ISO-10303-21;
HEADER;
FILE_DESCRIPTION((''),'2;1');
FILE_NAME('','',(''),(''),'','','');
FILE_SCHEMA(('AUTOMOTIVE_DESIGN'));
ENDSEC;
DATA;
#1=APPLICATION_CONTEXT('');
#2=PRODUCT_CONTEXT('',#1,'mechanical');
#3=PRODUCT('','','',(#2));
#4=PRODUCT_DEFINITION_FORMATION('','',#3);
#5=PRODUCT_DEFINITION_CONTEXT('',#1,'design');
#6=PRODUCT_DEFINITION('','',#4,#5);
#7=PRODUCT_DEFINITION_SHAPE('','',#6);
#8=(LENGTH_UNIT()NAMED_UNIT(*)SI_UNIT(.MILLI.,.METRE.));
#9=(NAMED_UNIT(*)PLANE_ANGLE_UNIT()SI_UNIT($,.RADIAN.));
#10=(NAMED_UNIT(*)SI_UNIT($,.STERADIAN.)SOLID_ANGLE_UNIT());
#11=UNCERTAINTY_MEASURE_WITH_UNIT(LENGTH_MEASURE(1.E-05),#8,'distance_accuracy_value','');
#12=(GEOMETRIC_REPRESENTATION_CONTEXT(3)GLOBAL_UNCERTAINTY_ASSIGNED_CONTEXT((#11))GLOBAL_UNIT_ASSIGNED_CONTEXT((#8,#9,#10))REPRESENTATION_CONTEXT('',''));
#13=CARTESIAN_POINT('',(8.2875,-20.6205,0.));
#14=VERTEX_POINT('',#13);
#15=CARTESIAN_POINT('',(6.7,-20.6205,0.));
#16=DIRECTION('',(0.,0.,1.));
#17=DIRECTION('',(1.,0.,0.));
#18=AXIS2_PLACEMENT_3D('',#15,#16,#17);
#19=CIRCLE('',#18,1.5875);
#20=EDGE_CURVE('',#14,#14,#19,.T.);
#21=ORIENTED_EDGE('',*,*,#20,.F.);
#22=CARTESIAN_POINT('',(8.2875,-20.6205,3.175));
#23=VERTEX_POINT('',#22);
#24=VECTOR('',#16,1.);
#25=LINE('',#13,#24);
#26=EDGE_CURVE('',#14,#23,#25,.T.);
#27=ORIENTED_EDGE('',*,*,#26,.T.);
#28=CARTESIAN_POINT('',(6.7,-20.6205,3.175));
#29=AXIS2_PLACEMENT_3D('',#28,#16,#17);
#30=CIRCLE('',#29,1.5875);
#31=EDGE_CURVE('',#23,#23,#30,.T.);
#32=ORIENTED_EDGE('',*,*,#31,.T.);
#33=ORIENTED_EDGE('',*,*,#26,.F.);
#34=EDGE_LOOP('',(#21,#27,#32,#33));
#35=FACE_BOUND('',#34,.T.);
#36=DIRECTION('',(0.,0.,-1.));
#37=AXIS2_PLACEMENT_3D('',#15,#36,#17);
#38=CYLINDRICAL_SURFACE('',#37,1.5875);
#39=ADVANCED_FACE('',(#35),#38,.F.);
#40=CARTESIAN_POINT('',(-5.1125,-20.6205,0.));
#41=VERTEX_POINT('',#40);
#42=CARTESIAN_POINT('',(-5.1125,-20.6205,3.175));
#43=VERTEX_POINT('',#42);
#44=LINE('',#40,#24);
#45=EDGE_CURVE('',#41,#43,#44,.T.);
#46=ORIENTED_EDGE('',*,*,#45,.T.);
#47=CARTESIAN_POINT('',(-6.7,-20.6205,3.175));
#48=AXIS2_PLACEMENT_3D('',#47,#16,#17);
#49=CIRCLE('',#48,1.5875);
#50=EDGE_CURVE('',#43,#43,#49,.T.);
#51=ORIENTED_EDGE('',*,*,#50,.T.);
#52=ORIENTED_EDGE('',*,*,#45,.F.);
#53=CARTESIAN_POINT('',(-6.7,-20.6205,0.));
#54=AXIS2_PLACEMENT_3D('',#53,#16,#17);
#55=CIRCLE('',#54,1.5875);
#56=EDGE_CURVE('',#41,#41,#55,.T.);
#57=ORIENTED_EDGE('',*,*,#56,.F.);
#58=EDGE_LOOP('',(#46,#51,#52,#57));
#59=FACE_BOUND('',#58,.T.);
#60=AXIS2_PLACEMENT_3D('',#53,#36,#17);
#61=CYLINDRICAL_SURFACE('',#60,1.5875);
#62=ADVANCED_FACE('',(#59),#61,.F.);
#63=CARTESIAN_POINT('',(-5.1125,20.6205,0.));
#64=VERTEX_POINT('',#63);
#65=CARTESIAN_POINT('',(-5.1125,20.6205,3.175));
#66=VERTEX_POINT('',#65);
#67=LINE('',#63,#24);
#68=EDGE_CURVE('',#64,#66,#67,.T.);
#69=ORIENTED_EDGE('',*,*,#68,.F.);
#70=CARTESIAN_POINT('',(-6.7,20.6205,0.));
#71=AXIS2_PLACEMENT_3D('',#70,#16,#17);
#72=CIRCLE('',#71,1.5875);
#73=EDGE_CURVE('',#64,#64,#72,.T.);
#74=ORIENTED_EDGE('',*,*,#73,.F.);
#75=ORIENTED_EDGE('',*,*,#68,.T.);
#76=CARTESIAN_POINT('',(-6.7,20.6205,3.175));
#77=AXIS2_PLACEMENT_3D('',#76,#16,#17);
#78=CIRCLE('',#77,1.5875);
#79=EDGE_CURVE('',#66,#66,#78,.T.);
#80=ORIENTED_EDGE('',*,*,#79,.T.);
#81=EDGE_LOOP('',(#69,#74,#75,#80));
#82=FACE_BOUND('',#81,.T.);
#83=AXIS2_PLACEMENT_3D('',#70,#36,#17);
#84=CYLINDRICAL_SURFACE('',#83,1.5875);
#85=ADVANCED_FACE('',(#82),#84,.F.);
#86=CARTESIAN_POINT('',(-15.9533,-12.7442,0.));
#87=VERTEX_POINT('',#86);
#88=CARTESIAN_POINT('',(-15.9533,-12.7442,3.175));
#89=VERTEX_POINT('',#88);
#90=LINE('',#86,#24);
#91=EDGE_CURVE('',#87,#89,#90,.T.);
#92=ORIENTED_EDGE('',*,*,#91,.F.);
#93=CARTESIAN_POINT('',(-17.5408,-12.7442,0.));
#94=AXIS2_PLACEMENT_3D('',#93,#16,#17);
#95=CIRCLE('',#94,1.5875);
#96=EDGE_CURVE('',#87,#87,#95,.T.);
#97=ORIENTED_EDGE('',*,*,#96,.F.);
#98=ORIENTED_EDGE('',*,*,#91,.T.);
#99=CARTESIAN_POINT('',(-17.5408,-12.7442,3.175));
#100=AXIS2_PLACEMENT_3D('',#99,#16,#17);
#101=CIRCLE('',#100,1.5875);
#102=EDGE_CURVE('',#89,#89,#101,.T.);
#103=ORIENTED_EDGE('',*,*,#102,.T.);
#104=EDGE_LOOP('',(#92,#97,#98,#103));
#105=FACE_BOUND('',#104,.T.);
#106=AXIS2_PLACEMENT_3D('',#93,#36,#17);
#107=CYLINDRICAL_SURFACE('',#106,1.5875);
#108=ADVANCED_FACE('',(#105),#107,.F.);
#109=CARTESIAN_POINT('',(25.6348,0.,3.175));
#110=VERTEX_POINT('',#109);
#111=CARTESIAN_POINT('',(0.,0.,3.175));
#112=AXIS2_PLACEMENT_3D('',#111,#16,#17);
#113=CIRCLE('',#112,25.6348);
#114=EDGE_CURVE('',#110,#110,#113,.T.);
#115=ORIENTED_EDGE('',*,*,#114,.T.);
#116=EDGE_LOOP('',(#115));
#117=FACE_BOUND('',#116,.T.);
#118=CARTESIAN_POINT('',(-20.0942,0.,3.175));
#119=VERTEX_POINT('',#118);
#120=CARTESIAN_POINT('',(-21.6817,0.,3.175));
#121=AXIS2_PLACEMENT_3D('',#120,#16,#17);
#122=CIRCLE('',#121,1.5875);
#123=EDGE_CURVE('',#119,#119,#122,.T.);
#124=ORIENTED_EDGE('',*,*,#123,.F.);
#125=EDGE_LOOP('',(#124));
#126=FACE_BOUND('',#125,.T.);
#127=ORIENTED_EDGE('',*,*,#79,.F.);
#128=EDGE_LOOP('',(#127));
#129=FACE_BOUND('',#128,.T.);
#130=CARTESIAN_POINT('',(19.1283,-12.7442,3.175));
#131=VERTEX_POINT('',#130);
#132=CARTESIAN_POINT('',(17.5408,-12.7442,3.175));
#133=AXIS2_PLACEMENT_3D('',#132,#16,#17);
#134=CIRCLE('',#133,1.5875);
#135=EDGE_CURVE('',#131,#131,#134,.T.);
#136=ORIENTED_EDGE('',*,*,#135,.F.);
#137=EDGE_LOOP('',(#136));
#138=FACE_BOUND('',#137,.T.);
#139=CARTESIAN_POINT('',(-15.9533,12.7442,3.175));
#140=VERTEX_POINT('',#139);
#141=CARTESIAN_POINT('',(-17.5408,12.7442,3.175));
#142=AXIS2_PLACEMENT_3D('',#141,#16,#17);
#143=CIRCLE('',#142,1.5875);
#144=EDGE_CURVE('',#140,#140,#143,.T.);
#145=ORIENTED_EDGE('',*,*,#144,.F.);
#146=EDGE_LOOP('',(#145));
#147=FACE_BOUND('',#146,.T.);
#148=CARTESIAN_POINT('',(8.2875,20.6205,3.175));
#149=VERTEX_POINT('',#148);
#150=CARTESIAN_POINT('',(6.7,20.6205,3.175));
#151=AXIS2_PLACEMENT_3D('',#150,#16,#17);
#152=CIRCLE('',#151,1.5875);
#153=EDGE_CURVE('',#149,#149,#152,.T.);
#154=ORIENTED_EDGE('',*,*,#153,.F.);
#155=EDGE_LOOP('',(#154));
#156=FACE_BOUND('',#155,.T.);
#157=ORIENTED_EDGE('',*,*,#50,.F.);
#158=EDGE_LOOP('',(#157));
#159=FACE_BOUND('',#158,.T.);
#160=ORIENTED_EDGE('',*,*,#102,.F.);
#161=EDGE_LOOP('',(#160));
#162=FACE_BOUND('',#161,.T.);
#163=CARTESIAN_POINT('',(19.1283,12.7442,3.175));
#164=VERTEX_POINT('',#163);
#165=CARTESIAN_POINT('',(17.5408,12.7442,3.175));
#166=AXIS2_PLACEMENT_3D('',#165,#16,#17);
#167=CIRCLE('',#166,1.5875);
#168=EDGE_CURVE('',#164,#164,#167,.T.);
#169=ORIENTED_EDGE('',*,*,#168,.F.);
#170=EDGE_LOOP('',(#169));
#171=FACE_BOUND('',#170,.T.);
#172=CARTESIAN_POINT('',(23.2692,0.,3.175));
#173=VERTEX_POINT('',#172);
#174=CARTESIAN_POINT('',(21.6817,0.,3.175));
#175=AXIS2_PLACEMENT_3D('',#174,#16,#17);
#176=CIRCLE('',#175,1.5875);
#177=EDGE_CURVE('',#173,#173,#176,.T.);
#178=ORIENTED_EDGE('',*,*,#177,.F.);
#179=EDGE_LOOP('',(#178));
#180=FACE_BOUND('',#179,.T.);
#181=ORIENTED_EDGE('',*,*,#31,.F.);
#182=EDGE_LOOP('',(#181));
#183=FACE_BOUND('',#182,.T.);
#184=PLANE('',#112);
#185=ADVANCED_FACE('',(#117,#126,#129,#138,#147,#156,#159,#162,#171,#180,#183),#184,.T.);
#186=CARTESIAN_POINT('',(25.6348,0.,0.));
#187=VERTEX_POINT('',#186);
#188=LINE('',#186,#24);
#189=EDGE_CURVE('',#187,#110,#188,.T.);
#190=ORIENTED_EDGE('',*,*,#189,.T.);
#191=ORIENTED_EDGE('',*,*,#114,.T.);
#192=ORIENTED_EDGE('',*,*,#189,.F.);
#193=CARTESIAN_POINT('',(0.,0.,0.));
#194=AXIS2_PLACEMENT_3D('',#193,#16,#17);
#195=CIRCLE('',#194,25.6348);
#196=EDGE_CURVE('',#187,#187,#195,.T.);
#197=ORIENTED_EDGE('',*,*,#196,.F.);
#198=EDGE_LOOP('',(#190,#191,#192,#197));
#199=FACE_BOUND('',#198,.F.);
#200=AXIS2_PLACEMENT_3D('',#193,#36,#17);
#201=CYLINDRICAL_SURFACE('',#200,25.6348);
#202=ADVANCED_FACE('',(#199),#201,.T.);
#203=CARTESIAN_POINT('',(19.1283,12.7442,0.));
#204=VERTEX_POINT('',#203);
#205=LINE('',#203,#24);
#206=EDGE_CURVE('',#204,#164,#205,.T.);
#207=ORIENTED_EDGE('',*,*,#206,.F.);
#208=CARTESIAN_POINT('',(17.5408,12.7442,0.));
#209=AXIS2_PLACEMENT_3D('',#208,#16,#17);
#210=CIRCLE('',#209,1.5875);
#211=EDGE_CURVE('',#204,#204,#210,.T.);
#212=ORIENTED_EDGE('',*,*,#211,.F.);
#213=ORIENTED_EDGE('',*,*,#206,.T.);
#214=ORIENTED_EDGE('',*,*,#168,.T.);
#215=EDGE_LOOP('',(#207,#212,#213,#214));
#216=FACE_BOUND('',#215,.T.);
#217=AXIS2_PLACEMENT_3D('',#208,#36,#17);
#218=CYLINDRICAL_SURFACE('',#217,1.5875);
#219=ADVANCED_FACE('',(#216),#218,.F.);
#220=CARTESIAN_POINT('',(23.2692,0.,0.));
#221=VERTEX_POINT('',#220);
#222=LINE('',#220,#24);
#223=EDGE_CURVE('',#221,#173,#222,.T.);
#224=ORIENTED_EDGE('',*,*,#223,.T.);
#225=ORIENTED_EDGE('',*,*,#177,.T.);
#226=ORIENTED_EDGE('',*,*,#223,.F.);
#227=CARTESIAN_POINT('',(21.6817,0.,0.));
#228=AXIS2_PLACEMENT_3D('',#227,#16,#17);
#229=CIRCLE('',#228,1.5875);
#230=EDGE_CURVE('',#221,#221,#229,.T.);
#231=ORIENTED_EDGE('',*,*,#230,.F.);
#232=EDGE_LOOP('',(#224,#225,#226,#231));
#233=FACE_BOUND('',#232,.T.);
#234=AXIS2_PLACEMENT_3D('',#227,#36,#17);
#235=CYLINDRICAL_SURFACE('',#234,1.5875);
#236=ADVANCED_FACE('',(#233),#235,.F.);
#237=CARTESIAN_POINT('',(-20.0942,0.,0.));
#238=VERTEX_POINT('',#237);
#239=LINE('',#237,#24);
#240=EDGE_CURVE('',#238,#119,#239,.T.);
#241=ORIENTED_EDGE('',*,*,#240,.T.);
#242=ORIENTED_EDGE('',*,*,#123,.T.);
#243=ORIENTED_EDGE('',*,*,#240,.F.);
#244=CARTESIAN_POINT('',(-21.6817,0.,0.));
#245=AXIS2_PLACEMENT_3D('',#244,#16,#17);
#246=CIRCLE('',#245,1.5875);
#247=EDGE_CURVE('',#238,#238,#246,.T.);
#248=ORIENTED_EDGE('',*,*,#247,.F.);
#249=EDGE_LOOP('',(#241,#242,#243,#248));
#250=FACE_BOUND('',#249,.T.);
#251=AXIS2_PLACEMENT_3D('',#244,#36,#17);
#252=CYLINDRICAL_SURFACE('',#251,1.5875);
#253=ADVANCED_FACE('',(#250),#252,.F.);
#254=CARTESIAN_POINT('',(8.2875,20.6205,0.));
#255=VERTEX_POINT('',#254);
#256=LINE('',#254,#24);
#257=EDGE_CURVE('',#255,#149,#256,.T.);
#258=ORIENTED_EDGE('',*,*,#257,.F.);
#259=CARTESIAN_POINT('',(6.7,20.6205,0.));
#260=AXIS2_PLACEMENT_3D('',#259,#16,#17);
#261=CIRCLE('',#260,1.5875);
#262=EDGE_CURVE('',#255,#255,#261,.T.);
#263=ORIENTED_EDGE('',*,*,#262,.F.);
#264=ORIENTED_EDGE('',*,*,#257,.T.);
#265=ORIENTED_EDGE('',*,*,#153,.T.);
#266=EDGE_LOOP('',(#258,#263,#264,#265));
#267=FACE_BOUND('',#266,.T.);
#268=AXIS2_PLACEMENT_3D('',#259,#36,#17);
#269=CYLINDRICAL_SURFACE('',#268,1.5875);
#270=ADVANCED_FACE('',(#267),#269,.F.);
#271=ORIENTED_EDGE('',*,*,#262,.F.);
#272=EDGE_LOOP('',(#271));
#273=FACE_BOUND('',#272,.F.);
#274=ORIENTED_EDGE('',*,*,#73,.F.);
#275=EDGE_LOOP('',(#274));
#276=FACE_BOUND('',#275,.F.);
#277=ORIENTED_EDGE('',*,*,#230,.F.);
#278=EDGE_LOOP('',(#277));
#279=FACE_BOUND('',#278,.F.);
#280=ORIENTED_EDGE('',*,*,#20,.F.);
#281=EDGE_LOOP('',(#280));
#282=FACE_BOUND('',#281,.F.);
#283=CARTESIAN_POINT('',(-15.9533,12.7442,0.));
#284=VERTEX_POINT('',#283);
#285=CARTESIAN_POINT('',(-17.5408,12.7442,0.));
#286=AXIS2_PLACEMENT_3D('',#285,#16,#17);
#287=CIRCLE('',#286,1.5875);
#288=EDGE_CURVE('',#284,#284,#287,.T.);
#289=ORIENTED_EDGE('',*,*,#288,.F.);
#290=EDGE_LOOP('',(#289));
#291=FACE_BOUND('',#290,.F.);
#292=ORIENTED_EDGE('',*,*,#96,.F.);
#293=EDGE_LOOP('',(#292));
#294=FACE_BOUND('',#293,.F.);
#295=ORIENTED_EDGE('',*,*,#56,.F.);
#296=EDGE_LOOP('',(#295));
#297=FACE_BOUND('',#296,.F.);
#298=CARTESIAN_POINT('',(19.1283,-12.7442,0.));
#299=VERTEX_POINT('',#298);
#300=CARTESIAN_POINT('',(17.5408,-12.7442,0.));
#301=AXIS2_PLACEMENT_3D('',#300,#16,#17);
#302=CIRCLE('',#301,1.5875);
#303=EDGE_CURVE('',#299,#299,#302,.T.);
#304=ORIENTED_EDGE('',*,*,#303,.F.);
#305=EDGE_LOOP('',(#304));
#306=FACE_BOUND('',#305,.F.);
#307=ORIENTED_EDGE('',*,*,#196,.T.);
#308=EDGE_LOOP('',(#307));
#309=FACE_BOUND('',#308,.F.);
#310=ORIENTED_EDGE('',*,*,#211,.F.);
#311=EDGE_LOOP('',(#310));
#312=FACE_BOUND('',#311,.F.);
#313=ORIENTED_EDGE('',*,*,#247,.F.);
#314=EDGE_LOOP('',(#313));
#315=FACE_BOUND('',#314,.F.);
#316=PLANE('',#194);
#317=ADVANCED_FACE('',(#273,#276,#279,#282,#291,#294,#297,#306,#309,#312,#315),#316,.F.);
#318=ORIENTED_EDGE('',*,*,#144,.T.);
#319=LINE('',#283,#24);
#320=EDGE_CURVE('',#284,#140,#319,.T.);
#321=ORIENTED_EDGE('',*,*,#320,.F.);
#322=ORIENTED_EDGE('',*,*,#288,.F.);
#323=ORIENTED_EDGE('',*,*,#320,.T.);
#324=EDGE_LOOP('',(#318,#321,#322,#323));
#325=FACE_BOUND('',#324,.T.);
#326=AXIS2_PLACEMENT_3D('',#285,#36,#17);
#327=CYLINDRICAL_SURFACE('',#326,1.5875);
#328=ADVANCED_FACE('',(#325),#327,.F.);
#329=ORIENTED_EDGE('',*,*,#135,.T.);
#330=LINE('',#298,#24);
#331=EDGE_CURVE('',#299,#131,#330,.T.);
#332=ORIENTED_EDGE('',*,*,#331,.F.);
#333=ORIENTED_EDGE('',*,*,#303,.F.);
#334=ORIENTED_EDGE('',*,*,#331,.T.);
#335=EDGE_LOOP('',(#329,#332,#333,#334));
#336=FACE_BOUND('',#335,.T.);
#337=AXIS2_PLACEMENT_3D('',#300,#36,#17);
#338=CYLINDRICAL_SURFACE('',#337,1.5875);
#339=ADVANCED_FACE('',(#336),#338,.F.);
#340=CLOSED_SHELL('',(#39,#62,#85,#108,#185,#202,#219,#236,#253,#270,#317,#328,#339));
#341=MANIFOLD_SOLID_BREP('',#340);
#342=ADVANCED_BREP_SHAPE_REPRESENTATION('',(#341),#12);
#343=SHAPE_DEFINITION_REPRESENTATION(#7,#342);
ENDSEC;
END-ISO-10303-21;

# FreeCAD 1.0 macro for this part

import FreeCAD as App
import Part
import Sketcher
from FreeCAD import Vector
Q = App.Units.Quantity

doc = App.newDocument("Part")
body = doc.addObject("PartDesign::Body", "Body")

sketch1 = body.newObject("Sketcher::SketchObject", "Sketch")
sketch1.AttachmentSupport = (doc.getObject("XY_Plane"), [""])
sketch1.MapMode = "FlatFace"
sketch1.addGeometry([
    Part.Circle(Vector(0, 0, 0), Vector(0, 0, 1), 25.6348),
    Part.Circle(Vector(-6.7, -20.6205, 0), Vector(0, 0, 1), 1.5875),
    Part.Circle(Vector(-17.5408, -12.7442, 0), Vector(0, 0, 1), 1.5875),
    Part.Circle(Vector(6.7, -20.6205, 0), Vector(0, 0, 1), 1.5875),
    Part.Circle(Vector(17.5408, -12.7442, 0), Vector(0, 0, 1), 1.5875),
    Part.Circle(Vector(-21.6817, 0, 0), Vector(0, 0, 1), 1.5875),
    Part.Circle(Vector(-17.5408, 12.7442, 0), Vector(0, 0, 1), 1.5875),
    Part.Circle(Vector(-6.7, 20.6205, 0), Vector(0, 0, 1), 1.5875),
    Part.Circle(Vector(21.6817, 0, 0), Vector(0, 0, 1), 1.5875),
    Part.Circle(Vector(17.5408, 12.7442, 0), Vector(0, 0, 1), 1.5875),
    Part.Circle(Vector(6.7, 20.6205, 0), Vector(0, 0, 1), 1.5875),
], False)
sketch1.addConstraint([
    Sketcher.Constraint("Coincident", 0, 3, -1, 1),
    Sketcher.Constraint("Equal", 1, 2),
    Sketcher.Constraint("Equal", 2, 3),
    Sketcher.Constraint("Equal", 3, 4),
    Sketcher.Constraint("Equal", 4, 5),
    Sketcher.Constraint("Equal", 5, 6),
    Sketcher.Constraint("Equal", 6, 7),
    Sketcher.Constraint("Equal", 7, 8),
    Sketcher.Constraint("Equal", 8, 9),
    Sketcher.Constraint("Equal", 9, 10),
    Sketcher.Constraint("Symmetric", 4, 3, 6, 3, -1, 1),
    Sketcher.Constraint("Symmetric", 3, 3, 7, 3, -1, 1),
    Sketcher.Constraint("Symmetric", 5, 3, 8, 3, -1, 1),
    Sketcher.Constraint("Symmetric", 2, 3, 9, 3, -1, 1),
    Sketcher.Constraint("Symmetric", 1, 3, 10, 3, -1, 1),
    Sketcher.Constraint("Symmetric", 1, 3, 3, 3, -2),
    Sketcher.Constraint("Symmetric", 2, 3, 4, 3, -2),
    Sketcher.Constraint("PointOnObject", 5, 3, -1),
    Sketcher.Constraint("Diameter", 1, Q("0.125 in")),
    Sketcher.Constraint("Diameter", 0, Q("2.0185 in")),
    Sketcher.Constraint("DistanceX", 5, 3, -1, 1, Q("0.8536 in")),
    Sketcher.Constraint("DistanceX", 2, 3, 1, 3, Q("0.4268 in")),
    Sketcher.Constraint("DistanceY", 1, 3, 2, 3, Q("0.3101 in")),
    Sketcher.Constraint("DistanceX", 5, 3, 3, 3, Q("1.1174 in")),
    Sketcher.Constraint("DistanceY", 1, 3, -1, 1, 20.6205),
])
pad1 = body.newObject("PartDesign::Pad", "Pad")
pad1.Profile = sketch1
pad1.Length = Q("0.125 in")

doc.recompute()
